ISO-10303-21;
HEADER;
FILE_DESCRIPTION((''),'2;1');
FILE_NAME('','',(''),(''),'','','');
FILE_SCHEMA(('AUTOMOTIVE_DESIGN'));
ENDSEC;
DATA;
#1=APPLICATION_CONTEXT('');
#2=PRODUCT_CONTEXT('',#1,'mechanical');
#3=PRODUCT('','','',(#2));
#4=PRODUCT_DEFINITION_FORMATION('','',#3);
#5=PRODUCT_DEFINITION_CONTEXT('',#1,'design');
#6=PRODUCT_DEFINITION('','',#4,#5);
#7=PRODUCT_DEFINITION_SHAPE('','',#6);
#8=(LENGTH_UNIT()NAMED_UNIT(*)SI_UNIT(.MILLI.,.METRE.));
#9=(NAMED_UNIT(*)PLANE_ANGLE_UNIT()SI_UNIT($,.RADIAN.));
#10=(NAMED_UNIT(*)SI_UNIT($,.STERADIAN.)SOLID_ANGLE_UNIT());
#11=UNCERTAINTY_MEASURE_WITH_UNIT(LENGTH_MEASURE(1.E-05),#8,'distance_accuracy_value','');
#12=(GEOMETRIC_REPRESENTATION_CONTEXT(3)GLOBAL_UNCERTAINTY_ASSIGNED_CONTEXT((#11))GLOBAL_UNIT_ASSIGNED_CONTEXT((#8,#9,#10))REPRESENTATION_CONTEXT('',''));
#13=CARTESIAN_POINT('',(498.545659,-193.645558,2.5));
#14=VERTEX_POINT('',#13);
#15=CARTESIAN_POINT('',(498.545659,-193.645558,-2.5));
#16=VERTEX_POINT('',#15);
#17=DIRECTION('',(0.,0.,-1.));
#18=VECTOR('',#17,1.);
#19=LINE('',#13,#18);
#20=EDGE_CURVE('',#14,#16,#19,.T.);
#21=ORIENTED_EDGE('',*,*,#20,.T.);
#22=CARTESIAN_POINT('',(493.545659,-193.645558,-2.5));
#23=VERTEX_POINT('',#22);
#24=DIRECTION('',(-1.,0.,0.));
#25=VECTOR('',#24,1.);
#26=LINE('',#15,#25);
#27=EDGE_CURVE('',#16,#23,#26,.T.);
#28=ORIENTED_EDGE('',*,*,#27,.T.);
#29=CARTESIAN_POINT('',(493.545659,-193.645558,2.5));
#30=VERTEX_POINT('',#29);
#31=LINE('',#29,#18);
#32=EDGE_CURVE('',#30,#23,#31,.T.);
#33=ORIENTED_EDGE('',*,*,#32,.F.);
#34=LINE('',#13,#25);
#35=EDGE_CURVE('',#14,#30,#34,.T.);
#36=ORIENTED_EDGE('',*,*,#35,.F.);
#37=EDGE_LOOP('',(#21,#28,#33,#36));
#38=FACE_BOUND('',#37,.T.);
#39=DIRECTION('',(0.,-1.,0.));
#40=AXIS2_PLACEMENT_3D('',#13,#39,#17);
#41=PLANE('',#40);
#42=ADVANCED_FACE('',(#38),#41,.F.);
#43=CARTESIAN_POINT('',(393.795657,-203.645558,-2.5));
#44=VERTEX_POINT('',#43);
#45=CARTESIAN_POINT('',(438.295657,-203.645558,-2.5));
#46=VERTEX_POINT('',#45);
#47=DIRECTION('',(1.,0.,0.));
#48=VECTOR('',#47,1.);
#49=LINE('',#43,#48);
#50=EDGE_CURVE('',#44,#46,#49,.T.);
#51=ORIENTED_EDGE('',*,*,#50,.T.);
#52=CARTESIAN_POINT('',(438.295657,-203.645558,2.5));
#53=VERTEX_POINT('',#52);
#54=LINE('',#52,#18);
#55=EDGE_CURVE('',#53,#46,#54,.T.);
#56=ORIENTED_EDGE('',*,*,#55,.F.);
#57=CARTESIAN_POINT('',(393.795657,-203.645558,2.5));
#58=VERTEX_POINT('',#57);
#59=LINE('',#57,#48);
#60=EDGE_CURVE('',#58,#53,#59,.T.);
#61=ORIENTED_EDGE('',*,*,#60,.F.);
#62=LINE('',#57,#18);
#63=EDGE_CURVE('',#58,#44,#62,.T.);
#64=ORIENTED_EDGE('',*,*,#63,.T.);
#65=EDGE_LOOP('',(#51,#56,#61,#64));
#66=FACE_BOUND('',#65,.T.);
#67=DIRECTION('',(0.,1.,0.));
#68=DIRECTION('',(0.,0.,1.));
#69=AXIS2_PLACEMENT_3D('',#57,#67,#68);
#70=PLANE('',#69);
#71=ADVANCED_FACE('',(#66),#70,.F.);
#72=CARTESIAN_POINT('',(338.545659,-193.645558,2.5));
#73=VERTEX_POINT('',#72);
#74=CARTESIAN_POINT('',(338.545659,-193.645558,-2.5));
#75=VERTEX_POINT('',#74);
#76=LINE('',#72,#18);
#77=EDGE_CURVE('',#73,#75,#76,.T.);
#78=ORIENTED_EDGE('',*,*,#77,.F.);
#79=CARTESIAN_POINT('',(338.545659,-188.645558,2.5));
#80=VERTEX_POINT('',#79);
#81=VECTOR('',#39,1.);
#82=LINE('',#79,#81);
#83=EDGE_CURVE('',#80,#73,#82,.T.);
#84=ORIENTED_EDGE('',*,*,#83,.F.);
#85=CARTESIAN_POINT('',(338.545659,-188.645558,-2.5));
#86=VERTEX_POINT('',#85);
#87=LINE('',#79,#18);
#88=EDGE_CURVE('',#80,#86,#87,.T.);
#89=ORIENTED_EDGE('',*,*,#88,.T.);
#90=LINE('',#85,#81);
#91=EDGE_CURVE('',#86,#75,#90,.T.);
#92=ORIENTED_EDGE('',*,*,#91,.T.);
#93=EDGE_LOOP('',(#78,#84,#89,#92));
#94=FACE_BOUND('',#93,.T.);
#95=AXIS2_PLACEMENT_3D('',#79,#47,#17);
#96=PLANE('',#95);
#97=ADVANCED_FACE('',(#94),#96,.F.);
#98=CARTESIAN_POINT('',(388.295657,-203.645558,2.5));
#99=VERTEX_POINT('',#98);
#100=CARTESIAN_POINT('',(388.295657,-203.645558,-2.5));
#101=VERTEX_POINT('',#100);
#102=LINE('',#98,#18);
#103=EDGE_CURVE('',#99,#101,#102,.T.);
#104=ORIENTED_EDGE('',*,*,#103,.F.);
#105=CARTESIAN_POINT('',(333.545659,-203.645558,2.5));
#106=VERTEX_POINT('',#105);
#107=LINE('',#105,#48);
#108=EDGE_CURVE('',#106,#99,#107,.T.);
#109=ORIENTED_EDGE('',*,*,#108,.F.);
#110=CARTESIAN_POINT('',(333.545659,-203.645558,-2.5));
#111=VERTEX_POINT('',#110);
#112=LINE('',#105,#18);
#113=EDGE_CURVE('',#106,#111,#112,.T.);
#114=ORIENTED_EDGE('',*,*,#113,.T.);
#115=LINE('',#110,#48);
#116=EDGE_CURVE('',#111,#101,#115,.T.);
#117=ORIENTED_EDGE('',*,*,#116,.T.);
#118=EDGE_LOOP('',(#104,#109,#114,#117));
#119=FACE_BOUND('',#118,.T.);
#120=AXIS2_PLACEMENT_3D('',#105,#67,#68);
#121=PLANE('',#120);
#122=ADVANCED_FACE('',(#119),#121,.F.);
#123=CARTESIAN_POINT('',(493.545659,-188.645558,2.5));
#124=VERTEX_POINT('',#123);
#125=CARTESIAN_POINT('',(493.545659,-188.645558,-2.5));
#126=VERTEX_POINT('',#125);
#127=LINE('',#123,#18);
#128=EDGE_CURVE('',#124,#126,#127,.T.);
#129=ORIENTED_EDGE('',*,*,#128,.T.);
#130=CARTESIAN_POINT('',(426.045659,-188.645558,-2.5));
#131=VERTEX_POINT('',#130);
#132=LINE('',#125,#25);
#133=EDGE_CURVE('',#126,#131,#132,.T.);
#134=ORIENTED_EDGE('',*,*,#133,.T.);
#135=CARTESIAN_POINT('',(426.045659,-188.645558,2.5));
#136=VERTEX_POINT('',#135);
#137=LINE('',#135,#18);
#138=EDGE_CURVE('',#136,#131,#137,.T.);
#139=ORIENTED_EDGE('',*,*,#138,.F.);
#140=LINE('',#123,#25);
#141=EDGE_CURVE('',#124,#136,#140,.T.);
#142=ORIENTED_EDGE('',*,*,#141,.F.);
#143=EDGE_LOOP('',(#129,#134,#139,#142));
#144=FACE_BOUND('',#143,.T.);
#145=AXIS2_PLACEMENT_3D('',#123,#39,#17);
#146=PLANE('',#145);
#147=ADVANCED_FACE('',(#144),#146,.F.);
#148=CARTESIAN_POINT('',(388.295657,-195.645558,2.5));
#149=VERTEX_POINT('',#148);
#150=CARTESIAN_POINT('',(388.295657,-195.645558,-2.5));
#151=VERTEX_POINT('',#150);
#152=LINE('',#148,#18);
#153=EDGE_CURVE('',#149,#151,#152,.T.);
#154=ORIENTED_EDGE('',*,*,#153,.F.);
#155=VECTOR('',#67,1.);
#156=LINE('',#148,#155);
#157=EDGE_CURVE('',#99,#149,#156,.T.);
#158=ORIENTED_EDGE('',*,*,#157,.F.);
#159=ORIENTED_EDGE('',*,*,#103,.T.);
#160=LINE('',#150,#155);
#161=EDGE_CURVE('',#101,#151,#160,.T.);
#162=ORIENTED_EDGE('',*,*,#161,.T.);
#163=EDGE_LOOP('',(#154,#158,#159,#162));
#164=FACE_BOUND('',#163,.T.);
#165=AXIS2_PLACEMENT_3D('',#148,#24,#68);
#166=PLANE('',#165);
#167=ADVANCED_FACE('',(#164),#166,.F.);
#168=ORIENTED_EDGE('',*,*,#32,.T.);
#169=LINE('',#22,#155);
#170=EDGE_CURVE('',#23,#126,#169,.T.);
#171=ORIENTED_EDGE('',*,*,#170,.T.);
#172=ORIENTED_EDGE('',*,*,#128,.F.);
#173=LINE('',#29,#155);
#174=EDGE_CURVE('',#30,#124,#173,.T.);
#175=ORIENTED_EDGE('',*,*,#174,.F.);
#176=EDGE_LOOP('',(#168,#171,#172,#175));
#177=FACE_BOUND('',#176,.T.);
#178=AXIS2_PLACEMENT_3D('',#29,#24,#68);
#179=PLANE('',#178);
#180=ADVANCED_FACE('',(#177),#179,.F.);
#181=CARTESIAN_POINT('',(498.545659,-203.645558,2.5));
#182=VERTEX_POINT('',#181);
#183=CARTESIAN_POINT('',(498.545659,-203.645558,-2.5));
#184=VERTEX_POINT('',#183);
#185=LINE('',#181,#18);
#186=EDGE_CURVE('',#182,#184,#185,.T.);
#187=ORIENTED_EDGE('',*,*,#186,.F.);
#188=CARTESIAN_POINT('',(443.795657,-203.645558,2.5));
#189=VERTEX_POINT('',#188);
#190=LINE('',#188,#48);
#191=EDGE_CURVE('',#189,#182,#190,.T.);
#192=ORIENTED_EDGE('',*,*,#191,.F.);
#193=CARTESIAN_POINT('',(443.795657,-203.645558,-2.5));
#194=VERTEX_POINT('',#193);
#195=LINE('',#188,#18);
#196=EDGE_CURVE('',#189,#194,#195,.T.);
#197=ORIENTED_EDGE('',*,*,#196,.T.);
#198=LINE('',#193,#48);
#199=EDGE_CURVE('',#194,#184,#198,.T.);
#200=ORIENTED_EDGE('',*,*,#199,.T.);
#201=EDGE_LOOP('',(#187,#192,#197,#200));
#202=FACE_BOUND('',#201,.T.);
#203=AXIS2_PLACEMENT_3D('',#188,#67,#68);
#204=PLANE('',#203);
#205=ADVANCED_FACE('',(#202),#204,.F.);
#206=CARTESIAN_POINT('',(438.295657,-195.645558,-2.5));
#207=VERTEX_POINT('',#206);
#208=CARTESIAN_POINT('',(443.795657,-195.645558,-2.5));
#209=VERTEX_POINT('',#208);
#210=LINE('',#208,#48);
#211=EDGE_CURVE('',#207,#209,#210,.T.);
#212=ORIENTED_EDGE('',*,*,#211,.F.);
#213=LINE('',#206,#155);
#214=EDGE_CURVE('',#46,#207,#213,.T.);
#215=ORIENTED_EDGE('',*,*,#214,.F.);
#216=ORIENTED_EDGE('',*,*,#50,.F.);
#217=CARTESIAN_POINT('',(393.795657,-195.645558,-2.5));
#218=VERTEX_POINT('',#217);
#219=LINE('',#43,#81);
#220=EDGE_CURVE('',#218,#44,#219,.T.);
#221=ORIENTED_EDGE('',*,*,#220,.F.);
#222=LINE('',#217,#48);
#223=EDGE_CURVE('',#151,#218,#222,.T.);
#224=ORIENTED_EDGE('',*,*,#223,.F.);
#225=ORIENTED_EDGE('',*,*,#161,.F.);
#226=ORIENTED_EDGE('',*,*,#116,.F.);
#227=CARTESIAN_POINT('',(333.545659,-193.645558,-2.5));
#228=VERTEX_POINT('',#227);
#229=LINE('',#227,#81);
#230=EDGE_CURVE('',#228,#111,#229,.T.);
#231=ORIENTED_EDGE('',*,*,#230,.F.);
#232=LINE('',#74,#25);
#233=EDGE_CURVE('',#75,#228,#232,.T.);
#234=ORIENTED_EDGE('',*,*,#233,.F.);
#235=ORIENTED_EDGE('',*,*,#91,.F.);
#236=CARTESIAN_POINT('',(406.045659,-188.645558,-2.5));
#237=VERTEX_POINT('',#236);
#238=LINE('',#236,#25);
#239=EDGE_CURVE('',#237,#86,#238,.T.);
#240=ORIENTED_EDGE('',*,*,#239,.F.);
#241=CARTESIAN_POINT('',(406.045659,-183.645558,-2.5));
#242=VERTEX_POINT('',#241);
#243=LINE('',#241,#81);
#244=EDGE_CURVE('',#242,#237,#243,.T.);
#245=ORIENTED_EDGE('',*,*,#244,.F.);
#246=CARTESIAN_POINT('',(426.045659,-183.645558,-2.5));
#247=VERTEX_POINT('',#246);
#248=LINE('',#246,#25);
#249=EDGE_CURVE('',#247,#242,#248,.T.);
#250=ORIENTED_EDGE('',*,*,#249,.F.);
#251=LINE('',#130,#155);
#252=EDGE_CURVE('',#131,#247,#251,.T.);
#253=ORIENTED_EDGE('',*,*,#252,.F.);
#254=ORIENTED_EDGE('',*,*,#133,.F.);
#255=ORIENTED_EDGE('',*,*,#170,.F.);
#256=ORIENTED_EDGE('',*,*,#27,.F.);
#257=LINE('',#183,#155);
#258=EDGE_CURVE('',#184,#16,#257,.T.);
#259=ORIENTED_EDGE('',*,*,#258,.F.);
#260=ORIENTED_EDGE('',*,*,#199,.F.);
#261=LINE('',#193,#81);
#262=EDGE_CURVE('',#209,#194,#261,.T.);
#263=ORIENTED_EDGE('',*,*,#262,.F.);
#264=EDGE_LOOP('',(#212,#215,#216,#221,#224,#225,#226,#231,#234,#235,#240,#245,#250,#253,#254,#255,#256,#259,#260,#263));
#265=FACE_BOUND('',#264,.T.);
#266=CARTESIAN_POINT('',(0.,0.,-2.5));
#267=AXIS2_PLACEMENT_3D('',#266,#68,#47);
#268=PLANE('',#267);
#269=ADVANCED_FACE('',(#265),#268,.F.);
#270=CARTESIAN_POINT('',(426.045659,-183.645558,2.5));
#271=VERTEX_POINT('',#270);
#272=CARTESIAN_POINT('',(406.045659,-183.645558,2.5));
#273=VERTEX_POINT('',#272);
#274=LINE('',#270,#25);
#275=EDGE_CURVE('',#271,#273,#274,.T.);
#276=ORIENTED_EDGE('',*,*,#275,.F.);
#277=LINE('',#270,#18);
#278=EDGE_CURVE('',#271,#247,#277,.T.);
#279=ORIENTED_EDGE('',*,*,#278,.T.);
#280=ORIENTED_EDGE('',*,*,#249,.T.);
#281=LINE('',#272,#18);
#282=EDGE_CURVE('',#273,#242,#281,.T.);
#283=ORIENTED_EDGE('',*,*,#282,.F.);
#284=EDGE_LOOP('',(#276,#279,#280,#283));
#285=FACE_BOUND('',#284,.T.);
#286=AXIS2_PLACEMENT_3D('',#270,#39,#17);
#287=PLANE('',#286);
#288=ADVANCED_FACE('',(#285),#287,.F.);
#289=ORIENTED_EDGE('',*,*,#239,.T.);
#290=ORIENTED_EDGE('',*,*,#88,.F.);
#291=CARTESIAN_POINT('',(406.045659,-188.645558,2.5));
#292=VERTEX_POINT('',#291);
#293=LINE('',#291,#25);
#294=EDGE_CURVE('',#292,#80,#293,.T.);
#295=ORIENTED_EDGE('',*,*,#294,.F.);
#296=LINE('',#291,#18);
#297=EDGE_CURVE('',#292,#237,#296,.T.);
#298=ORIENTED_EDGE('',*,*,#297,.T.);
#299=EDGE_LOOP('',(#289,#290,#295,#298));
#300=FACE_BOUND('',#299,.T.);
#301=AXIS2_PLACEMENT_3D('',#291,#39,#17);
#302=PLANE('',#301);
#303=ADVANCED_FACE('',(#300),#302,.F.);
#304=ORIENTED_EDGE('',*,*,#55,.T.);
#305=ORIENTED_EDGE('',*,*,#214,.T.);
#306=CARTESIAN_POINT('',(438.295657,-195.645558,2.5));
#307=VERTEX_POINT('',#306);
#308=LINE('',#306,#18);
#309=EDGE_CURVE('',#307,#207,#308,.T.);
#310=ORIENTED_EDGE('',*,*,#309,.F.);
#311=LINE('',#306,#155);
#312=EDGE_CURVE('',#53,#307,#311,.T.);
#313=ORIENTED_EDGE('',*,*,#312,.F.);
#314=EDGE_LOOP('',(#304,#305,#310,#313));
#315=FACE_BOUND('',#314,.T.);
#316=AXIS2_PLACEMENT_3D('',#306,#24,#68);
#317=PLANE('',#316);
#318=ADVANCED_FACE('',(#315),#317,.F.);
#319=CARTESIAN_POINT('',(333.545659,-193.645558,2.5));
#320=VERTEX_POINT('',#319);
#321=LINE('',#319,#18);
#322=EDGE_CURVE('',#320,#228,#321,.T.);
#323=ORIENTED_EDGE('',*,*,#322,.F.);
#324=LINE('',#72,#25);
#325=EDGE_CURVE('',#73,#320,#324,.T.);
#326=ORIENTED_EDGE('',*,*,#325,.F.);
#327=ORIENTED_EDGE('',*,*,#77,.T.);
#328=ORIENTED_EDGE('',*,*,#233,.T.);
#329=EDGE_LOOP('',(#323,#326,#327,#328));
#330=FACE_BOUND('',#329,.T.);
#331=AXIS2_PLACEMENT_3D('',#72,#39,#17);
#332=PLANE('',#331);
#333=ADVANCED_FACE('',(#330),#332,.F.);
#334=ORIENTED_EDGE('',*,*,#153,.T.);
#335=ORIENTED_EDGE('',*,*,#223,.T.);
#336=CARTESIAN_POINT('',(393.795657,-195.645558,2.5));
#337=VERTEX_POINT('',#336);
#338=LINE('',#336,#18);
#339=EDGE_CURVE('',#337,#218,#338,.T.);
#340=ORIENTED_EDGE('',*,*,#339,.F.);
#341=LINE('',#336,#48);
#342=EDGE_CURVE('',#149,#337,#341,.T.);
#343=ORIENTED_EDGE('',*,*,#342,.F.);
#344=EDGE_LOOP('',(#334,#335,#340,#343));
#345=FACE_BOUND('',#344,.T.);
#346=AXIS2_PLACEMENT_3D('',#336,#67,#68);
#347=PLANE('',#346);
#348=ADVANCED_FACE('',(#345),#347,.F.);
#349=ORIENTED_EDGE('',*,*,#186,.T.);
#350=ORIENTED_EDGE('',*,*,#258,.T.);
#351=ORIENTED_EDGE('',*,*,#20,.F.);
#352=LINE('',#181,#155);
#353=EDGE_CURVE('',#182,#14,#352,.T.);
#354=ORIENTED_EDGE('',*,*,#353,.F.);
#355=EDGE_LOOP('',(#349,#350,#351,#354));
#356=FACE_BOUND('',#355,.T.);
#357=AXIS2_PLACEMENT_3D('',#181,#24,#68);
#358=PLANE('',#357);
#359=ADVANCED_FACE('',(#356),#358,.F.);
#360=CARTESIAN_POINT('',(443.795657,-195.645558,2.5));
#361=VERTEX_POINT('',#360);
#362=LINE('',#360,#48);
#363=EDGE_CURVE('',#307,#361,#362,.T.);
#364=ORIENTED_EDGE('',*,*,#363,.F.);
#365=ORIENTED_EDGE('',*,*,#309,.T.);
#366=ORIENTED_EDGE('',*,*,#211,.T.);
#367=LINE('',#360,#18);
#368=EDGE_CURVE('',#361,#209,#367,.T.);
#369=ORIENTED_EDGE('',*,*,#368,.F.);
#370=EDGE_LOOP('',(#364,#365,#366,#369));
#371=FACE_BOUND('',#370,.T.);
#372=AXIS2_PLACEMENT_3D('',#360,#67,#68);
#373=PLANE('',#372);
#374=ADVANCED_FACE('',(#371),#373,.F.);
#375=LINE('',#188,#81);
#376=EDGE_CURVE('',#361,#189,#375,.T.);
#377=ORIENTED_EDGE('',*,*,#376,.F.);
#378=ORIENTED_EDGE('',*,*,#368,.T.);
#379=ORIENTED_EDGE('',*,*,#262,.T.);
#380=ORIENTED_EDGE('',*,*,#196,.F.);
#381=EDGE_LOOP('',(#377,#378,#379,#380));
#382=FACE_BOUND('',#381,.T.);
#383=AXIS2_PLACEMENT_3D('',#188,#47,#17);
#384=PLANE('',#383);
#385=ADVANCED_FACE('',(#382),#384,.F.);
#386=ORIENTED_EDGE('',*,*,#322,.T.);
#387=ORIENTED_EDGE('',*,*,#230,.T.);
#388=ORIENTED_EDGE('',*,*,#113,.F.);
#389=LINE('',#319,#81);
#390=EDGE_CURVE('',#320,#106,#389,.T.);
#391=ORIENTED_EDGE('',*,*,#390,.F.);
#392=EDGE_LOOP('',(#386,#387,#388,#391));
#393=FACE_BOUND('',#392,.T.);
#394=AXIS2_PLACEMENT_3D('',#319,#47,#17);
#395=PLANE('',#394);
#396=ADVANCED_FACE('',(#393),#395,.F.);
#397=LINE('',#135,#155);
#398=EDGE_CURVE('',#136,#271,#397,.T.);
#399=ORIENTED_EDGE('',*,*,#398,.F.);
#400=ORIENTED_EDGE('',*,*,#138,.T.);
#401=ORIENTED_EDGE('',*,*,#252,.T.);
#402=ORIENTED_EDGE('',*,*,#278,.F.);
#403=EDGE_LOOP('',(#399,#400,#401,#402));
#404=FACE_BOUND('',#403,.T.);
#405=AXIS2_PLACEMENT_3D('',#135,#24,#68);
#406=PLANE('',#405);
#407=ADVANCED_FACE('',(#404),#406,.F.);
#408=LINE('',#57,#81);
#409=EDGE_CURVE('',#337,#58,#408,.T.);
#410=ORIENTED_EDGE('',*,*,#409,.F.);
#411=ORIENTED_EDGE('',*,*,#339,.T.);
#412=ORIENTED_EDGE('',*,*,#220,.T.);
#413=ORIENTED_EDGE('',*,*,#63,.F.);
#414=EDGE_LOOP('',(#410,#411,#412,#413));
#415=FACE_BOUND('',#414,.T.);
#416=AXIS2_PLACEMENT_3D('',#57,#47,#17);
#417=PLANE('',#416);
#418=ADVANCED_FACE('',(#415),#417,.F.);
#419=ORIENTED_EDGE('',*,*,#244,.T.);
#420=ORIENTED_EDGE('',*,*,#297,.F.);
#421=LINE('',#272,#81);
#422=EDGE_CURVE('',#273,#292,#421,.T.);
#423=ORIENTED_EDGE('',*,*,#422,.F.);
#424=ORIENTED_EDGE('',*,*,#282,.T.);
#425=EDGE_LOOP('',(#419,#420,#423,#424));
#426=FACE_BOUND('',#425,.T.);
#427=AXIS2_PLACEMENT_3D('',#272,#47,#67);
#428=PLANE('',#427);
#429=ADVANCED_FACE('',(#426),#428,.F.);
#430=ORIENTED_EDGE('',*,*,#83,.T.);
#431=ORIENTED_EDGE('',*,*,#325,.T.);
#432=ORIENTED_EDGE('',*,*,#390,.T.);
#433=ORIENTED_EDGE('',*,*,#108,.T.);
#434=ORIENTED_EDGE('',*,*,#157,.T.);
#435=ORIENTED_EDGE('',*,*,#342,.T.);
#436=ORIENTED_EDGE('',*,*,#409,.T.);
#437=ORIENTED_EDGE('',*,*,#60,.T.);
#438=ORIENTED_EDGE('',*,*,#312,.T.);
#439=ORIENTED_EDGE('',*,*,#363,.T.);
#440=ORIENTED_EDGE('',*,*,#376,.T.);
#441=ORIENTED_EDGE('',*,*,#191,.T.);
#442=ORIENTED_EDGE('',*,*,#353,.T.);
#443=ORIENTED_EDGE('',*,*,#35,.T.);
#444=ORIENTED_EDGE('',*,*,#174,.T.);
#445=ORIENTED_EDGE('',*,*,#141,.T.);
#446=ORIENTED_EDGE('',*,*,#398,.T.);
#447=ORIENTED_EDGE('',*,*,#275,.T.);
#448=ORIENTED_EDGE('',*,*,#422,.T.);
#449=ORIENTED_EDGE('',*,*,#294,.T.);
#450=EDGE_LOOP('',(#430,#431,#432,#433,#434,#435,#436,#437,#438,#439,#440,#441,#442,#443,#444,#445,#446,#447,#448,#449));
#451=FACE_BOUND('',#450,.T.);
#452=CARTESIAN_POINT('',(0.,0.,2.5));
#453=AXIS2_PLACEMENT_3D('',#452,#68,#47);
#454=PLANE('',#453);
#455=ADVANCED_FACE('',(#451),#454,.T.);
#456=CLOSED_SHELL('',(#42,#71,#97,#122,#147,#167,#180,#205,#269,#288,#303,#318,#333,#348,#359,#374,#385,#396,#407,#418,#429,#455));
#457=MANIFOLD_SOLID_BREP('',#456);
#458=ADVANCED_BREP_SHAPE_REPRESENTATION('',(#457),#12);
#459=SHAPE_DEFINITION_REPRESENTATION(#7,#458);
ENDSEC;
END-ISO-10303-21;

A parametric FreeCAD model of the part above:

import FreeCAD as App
import Part
import Sketcher
from FreeCAD import Vector
Q = App.Units.Quantity


def add_polygon(sketch, points):
    """Adds a closed chain of lines whose ends are joined by coincident constraints."""
    first, n = sketch.GeometryCount, len(points)
    for a, b in zip(points, points[1:] + points[:1]):
        sketch.addGeometry(Part.LineSegment(App.Vector(*a, 0), App.Vector(*b, 0)), False)
    for i in range(n):
        sketch.addConstraint(Sketcher.Constraint("Coincident", first + i, 2, first + (i + 1) % n, 1))

doc = App.newDocument("Part")
body = doc.addObject("PartDesign::Body", "Body")

sketch1 = doc.addObject("Sketcher::SketchObject", "Sketch")
body.addObject(sketch1)
sketch1.AttachmentSupport = (doc.XY_Plane, [""])
sketch1.MapMode = "FlatFace"
add_polygon(sketch1, [(443.795657, -195.645558), (443.795657, -203.645558), (498.545659, -203.645558), (498.545659, -193.645558), (493.545659, -193.645558), (493.545659, -188.645558), (426.045659, -188.645558), (426.045659, -183.645558), (406.045659, -183.645558), (406.045659, -188.645558), (338.545659, -188.645558), (338.545659, -193.645558), (333.545659, -193.645558), (333.545659, -203.645558), (388.295657, -203.645558), (388.295657, -195.645558), (393.795657, -195.645558), (393.795657, -203.645558), (438.295657, -203.645558), (438.295657, -195.645558)])
sketch1.addConstraint([
    Sketcher.Constraint("Vertical", 0),
    Sketcher.Constraint("Horizontal", 1),
    Sketcher.Constraint("Vertical", 2),
    Sketcher.Constraint("Horizontal", 3),
    Sketcher.Constraint("Vertical", 4),
    Sketcher.Constraint("Horizontal", 5),
    Sketcher.Constraint("Vertical", 6),
    Sketcher.Constraint("Horizontal", 7),
    Sketcher.Constraint("Vertical", 8),
    Sketcher.Constraint("Horizontal", 9),
    Sketcher.Constraint("Vertical", 10),
    Sketcher.Constraint("Horizontal", 11),
    Sketcher.Constraint("Vertical", 12),
    Sketcher.Constraint("Horizontal", 13),
    Sketcher.Constraint("Vertical", 14),
    Sketcher.Constraint("Horizontal", 15),
    Sketcher.Constraint("Vertical", 16),
    Sketcher.Constraint("Horizontal", 17),
    Sketcher.Constraint("Vertical", 18),
    Sketcher.Constraint("Horizontal", 19),
    Sketcher.Constraint("Horizontal", 5, 2, 8, 2),
    Sketcher.Constraint("Horizontal", 3, 2, 10, 2),
    Sketcher.Constraint("Horizontal", 1, 2, 12, 2),
    Sketcher.Constraint("Horizontal", 13, 2, 16, 2),
    Sketcher.Constraint("Horizontal", 15, 2, 18, 2),
    Sketcher.Constraint("Equal", 5, 9),
    Sketcher.Constraint("Equal", 3, 11),
    Sketcher.Constraint("Equal", 15, 19),
    Sketcher.Constraint("Equal", 11, 4),
    Sketcher.Constraint("Equal", 4, 6),
    Sketcher.Constraint("DistanceX", 3, 2, 3, 1, Q("5 mm")),
    Sketcher.Constraint("DistanceX", 7, 2, 7, 1, Q("20 mm")),
    Sketcher.Constraint("DistanceY", 0, 2, 0, 1, Q("8 mm")),
    Sketcher.Constraint("DistanceY", 2, 1, 2, 2, Q("10 mm")),
    Sketcher.Constraint("DistanceX", 5, 2, 5, 1, Q("67.5 mm")),
    Sketcher.Constraint("DistanceX", 15, 1, 15, 2, Q("5.5 mm")),
    Sketcher.Constraint("DistanceX", 17, 1, 17, 2, Q("44.5 mm")),
    Sketcher.Constraint("DistanceX", 1, 1, 1, 2, Q("54.750003 mm")),
    Sketcher.Constraint("DistanceX", -1, 1, 1, 2, Q("498.545659 mm")),
    Sketcher.Constraint("DistanceY", 0, 2, -1, 1, Q("203.645558 mm")),
])
pad1 = doc.addObject("PartDesign::Pad", "Pad")
body.addObject(pad1)
pad1.Profile = sketch1
pad1.Length = 5
pad1.Midplane = True

doc.recompute()
